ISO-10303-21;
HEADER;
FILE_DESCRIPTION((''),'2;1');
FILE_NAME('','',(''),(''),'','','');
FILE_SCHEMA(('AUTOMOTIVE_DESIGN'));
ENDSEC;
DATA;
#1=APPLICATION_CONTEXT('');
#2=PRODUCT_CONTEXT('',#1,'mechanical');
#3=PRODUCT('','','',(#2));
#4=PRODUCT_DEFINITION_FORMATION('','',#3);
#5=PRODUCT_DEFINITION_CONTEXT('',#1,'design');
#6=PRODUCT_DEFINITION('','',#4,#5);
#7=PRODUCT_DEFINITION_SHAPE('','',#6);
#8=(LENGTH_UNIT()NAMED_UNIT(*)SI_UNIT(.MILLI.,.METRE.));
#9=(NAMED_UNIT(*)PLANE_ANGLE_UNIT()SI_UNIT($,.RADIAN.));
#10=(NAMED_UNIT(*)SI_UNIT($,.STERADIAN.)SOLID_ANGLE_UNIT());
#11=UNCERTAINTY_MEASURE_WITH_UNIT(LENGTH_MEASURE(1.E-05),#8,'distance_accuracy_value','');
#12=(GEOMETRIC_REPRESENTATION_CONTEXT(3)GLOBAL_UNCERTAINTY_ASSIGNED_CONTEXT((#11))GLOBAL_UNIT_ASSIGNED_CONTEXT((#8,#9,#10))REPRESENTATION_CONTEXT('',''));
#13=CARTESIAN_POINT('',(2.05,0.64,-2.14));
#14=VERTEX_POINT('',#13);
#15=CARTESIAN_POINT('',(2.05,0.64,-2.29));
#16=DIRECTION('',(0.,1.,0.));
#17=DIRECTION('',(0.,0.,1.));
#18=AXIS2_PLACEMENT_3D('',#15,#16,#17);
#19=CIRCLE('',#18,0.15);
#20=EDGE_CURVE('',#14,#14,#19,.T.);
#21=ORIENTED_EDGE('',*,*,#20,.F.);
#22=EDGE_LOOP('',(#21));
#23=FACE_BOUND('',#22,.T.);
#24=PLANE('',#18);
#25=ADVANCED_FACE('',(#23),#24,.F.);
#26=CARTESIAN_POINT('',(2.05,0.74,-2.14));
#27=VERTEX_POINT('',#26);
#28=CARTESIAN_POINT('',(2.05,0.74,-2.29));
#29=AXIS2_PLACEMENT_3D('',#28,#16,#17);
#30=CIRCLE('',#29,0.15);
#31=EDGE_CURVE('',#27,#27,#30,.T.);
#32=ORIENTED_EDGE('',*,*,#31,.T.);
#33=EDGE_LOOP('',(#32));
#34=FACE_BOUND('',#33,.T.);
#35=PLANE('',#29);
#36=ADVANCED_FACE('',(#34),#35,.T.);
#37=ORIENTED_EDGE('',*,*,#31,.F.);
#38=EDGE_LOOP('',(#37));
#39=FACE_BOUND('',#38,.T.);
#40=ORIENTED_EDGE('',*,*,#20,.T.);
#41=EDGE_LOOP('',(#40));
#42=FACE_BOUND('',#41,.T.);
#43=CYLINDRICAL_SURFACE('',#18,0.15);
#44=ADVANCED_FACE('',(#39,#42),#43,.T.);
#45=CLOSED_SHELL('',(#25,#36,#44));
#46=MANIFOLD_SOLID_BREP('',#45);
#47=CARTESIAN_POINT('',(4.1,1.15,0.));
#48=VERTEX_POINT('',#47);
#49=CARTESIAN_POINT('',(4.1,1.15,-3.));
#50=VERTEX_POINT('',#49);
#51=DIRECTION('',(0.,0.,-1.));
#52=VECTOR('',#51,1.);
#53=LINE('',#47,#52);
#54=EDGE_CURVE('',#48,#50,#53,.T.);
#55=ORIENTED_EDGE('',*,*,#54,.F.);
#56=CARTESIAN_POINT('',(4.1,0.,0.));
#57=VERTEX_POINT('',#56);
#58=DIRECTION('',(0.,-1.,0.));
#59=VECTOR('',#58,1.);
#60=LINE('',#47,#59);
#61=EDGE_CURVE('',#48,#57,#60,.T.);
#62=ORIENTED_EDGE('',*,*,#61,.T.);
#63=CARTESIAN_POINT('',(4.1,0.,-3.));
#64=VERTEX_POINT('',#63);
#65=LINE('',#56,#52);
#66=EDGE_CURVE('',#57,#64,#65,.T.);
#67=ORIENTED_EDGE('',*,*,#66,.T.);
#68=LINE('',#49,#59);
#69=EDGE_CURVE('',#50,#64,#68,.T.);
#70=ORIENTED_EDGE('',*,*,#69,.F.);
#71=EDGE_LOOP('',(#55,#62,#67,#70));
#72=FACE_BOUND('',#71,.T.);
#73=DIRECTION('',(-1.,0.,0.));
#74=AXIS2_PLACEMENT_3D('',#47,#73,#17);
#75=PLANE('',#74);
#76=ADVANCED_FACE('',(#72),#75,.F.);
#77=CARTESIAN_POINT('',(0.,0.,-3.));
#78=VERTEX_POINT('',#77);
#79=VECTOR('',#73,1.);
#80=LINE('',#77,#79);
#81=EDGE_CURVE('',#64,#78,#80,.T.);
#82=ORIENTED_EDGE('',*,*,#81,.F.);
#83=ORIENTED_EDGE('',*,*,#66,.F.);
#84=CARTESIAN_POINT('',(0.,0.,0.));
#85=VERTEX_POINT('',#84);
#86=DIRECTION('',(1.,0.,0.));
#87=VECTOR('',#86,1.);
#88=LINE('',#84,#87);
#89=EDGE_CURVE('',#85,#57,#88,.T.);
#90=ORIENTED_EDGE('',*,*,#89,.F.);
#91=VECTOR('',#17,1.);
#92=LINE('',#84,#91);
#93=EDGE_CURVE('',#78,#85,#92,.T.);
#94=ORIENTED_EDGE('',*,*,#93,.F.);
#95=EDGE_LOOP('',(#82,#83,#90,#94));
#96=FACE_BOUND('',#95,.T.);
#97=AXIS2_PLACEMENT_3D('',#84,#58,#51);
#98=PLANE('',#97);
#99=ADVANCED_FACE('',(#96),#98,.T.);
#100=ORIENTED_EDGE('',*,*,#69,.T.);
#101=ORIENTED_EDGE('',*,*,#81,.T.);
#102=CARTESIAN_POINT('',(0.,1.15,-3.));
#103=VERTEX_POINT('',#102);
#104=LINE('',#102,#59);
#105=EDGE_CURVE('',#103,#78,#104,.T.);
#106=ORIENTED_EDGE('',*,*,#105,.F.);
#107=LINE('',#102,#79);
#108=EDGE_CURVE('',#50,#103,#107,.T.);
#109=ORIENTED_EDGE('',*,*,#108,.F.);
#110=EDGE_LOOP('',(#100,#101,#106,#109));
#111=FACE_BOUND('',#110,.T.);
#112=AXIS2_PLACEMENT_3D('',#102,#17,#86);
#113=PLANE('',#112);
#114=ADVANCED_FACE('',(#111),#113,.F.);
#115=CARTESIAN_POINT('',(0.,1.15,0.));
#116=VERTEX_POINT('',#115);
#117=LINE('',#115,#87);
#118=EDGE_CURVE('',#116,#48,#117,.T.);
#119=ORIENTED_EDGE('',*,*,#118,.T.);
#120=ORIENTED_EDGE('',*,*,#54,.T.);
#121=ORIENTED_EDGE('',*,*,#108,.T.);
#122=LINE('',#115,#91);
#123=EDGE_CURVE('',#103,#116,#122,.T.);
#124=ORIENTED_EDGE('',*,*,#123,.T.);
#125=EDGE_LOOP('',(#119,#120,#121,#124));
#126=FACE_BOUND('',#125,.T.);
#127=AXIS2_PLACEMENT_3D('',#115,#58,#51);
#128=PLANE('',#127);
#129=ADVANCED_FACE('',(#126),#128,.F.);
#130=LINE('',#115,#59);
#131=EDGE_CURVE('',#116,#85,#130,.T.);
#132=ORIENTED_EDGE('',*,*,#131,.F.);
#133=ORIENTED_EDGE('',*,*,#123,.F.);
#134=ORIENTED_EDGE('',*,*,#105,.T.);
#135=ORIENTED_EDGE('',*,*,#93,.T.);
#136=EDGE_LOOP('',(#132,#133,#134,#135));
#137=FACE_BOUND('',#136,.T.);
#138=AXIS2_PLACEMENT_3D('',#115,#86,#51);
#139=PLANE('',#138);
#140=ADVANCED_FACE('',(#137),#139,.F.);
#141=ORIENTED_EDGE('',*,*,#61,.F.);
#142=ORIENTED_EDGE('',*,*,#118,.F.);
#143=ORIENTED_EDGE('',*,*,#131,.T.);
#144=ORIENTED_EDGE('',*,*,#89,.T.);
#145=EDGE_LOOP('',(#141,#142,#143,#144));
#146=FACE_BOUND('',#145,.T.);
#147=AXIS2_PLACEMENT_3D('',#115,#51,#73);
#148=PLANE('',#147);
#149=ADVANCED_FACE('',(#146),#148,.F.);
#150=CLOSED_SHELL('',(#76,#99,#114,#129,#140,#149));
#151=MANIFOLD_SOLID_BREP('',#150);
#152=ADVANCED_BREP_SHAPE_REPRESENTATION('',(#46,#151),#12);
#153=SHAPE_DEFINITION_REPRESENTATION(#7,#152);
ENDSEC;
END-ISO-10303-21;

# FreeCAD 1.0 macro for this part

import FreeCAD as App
import Part
import Sketcher

doc = App.newDocument("Part")
body = doc.addObject("PartDesign::Body", "Body")

sketch1 = body.newObject("Sketcher::SketchObject", "Sketch")
sketch1.AttachmentSupport = (doc.getObject("XZ_Plane"), [""])
sketch1.MapMode = "FlatFace"
sketch1.addGeometry([
    Part.LineSegment(App.Vector(0, -3, 0), App.Vector(0, 0, 0)),
    Part.LineSegment(App.Vector(0, 0, 0), App.Vector(4.1, 0, 0)),
    Part.LineSegment(App.Vector(4.1, 0, 0), App.Vector(4.1, -3, 0)),
    Part.LineSegment(App.Vector(4.1, -3, 0), App.Vector(0, -3, 0)),
], False)
sketch1.addConstraint([
    Sketcher.Constraint("Coincident", 0, 2, 1, 1),
    Sketcher.Constraint("Coincident", 1, 2, 2, 1),
    Sketcher.Constraint("Coincident", 2, 2, 3, 1),
    Sketcher.Constraint("Coincident", 3, 2, 0, 1),
    Sketcher.Constraint("Vertical", 0),
    Sketcher.Constraint("Horizontal", 1),
    Sketcher.Constraint("Vertical", 2),
    Sketcher.Constraint("Horizontal", 3),
    Sketcher.Constraint("Coincident", 0, 2, -1, 1),
    Sketcher.Constraint("DistanceY", 0, 1, 0, 2, 3.0),
    Sketcher.Constraint("DistanceX", 1, 1, 1, 2, 4.1),
])
pad1 = body.newObject("PartDesign::Pad", "Pad")
pad1.Profile = sketch1
pad1.Length = 1.15
pad1.Reversed = True
body2 = doc.addObject("PartDesign::Body", "Body001")

sketch2 = body2.newObject("Sketcher::SketchObject", "Sketch001")
sketch2.AttachmentSupport = (doc.getObject("XZ_Plane001"), [""])
sketch2.MapMode = "FlatFace"
sketch2.AttachmentOffset = App.Placement(App.Vector(0, 0, -0.74), App.Rotation())
sketch2.addGeometry(Part.Circle(App.Vector(2.05, -2.29, 0), App.Vector(0, 0, 1), 0.15), False)
sketch2.addConstraint([
    Sketcher.Constraint("Diameter", 0, 0.3),
    Sketcher.Constraint("DistanceX", -1, 1, 0, 3, 2.05),
    Sketcher.Constraint("DistanceY", 0, 3, -1, 1, 2.29),
])
pad2 = body2.newObject("PartDesign::Pad", "Pad001")
pad2.Profile = sketch2
pad2.Length = 0.1

doc.recompute()
